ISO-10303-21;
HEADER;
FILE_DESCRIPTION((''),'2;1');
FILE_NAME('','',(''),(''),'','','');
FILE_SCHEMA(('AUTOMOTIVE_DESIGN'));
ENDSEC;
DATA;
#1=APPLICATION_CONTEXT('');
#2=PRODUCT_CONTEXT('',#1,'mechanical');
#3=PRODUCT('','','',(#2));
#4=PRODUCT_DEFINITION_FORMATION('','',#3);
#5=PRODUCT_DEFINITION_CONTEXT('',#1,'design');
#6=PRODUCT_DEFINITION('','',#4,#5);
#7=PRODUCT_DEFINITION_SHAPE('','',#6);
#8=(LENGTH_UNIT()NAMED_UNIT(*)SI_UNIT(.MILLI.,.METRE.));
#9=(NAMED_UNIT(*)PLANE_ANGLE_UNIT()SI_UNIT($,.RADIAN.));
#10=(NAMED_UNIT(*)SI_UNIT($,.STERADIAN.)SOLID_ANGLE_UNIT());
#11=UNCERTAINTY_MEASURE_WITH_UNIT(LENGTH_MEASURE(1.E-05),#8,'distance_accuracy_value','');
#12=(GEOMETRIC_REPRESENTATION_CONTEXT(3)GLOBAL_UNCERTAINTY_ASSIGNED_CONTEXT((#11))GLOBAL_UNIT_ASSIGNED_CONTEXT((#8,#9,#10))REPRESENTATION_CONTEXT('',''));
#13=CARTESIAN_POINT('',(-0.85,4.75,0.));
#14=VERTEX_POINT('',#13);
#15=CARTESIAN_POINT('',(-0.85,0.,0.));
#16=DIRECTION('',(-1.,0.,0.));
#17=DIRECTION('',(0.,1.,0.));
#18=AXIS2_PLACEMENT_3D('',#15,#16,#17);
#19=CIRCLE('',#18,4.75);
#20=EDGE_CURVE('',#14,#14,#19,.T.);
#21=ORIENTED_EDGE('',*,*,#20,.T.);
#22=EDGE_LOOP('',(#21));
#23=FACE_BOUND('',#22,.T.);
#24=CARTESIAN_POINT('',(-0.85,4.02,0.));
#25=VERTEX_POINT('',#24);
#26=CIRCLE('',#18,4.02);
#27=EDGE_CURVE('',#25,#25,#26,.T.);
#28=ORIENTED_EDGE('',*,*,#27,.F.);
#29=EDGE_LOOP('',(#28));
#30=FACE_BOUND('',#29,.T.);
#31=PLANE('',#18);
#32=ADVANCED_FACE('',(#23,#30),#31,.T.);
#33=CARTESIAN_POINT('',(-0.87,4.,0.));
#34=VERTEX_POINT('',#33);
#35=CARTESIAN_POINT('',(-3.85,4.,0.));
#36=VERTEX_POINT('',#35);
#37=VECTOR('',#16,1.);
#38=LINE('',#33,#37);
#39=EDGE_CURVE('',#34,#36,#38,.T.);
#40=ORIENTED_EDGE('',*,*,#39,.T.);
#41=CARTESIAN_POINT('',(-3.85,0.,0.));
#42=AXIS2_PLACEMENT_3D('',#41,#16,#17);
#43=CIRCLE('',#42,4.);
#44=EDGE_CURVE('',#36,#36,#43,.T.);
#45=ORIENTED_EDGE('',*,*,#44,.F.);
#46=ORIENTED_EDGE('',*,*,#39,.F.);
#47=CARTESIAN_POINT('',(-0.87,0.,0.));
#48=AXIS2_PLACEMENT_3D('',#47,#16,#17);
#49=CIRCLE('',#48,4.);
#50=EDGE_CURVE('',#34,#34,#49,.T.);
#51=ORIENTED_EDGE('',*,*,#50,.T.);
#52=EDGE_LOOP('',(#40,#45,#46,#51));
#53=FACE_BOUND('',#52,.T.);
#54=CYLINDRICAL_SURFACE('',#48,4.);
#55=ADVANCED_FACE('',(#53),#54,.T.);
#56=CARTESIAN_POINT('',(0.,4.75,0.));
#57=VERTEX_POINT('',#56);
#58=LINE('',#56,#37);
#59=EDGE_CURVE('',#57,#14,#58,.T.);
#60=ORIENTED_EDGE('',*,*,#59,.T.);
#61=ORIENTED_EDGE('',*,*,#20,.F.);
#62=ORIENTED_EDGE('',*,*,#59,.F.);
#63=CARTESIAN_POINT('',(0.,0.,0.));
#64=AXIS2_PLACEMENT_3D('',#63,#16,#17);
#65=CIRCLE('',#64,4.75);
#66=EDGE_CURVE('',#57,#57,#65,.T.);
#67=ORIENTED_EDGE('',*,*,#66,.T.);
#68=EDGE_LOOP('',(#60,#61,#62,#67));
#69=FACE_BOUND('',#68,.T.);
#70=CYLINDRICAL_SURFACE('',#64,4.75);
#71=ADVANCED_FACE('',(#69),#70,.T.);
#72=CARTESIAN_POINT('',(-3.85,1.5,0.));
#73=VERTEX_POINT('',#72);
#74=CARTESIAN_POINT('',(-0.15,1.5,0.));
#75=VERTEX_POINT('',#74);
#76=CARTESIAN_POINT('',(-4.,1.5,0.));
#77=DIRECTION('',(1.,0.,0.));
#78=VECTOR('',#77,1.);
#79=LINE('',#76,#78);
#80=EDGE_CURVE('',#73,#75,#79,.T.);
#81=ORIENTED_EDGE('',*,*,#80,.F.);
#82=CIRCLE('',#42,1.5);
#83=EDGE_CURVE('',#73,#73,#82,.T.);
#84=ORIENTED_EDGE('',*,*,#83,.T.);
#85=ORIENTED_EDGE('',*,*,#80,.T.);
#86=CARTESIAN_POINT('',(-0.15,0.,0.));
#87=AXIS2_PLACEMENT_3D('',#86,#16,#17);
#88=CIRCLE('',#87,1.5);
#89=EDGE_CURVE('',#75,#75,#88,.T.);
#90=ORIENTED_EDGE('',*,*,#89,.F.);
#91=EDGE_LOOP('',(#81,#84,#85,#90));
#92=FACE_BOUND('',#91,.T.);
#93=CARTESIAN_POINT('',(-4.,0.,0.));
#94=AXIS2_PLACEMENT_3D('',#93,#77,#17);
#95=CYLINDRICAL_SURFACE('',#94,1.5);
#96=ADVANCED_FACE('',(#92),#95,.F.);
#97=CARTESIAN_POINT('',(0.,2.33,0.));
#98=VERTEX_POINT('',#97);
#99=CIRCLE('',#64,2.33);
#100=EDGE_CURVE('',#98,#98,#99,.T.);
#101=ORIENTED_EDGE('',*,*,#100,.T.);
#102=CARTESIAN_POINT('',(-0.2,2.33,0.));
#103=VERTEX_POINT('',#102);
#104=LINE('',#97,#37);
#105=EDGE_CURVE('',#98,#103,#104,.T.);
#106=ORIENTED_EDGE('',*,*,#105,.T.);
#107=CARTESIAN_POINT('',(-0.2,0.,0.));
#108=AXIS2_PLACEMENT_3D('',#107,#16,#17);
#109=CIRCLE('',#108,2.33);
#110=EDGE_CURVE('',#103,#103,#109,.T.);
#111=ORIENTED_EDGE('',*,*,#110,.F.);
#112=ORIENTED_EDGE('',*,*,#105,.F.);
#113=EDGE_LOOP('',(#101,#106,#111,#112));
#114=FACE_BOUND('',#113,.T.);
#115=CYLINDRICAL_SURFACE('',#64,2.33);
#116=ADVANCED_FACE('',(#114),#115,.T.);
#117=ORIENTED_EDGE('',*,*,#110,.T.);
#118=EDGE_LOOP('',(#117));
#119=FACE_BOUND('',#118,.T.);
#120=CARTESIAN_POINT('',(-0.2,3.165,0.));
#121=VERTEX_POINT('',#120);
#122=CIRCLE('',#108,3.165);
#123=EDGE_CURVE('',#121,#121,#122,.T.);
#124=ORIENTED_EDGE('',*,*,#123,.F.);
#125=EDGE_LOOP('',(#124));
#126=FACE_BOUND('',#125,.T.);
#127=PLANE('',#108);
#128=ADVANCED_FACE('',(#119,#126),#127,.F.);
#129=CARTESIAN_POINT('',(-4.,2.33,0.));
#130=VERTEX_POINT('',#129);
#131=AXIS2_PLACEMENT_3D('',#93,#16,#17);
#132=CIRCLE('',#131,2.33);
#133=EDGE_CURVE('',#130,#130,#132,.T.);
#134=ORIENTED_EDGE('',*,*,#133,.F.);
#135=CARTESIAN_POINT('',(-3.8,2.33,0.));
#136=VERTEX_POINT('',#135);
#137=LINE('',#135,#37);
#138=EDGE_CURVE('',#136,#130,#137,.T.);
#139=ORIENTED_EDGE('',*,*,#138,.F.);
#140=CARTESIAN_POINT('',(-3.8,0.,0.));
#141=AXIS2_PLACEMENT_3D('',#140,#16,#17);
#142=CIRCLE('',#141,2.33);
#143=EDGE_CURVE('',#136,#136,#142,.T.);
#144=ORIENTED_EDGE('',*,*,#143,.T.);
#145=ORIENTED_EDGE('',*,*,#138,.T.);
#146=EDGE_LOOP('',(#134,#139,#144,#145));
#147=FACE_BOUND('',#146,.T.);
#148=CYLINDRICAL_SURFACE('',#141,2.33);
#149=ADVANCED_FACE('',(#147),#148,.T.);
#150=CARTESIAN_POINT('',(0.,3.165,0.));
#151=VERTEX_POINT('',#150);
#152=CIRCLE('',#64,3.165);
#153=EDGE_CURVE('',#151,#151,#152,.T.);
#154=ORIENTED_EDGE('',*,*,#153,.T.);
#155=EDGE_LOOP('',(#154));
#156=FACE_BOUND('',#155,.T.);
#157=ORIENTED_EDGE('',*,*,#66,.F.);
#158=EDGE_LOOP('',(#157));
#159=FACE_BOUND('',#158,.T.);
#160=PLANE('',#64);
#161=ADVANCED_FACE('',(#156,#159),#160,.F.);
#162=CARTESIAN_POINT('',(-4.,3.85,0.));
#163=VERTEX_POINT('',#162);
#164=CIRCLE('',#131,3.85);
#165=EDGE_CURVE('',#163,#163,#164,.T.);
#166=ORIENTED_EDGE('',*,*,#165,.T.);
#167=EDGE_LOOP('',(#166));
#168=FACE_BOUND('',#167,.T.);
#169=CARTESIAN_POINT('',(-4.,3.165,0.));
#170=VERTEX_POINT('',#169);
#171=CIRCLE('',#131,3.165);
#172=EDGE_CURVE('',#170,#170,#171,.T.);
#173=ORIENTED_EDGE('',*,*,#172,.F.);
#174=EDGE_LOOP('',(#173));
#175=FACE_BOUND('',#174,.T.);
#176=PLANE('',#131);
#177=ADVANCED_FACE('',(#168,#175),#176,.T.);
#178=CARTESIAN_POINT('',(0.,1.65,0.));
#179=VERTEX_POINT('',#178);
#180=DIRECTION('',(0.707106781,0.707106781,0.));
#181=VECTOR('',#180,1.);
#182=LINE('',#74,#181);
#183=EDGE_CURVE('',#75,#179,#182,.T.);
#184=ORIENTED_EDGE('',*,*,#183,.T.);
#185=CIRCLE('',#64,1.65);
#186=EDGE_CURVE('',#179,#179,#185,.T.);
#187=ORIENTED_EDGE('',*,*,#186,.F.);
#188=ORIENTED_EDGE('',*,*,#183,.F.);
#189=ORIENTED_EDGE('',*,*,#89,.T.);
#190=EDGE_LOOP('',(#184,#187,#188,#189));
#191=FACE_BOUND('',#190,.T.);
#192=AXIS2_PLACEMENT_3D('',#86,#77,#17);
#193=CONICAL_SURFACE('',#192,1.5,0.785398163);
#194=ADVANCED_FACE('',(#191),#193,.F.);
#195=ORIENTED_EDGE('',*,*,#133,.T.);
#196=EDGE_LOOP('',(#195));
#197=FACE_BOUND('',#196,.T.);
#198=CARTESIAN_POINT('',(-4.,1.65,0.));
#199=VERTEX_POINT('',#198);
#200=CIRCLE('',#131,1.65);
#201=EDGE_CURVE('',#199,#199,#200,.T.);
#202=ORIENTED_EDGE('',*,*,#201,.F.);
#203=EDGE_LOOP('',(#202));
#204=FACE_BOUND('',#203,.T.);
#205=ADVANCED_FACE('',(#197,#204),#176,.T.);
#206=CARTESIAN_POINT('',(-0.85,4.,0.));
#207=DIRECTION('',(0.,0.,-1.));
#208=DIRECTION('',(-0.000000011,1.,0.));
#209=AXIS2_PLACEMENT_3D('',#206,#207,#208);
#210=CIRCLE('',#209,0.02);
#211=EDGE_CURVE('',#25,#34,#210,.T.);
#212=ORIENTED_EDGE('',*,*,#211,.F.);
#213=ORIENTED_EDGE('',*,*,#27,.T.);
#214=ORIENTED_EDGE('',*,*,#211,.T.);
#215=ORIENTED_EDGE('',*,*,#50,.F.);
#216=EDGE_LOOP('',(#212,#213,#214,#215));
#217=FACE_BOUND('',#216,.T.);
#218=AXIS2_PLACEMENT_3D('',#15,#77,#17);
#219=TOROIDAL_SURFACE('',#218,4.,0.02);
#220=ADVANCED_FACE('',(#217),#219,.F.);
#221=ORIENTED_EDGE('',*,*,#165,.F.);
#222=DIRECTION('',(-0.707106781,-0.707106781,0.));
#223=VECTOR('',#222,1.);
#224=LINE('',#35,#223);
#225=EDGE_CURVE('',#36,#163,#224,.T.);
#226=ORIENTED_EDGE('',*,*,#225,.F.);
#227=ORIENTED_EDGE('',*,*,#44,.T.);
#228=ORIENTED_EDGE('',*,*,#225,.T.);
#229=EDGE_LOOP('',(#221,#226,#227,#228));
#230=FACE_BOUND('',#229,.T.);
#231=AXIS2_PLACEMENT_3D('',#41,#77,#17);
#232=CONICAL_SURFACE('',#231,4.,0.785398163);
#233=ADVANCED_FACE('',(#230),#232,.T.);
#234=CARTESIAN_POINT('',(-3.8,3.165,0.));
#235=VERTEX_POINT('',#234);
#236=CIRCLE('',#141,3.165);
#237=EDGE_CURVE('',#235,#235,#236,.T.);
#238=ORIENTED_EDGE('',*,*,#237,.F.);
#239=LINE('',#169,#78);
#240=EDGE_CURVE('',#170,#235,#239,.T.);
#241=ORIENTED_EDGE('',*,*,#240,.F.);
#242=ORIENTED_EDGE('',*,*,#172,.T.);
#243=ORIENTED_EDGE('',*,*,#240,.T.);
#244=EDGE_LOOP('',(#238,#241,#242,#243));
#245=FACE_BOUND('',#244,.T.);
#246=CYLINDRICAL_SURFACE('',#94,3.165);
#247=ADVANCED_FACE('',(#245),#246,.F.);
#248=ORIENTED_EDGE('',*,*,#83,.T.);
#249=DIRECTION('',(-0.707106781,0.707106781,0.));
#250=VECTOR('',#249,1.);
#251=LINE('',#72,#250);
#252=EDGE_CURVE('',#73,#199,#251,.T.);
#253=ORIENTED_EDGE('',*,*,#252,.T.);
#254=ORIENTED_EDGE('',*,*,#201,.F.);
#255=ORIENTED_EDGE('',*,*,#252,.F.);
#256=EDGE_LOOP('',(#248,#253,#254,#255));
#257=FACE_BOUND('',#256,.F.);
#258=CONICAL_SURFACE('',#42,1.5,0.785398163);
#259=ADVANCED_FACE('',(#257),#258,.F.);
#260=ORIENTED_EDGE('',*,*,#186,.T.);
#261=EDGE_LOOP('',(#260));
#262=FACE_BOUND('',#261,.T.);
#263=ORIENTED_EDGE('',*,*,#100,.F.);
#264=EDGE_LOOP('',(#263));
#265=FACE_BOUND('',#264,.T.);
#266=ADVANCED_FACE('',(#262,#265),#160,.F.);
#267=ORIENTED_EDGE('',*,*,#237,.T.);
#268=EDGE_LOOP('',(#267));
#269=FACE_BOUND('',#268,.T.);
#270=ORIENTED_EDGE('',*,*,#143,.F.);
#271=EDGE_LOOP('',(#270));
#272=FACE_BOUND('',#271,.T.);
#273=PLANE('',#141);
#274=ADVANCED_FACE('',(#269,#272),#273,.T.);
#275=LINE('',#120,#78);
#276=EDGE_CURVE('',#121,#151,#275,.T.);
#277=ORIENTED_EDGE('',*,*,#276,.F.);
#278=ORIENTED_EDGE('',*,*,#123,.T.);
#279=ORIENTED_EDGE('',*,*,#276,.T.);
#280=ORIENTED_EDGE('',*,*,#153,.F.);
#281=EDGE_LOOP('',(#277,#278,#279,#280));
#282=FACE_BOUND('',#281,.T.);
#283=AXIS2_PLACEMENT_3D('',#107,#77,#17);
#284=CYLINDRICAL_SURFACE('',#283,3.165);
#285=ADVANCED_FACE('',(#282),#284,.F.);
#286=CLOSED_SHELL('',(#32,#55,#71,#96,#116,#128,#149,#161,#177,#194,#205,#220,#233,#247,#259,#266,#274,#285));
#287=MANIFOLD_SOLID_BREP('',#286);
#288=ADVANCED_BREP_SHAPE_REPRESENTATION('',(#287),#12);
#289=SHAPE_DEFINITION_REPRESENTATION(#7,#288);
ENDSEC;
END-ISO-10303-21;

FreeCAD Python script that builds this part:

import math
import FreeCAD as App
import Part
import Sketcher

V = App.Vector


def edges_at(feature, points):
    """Names of the edges that pass closest to the given points."""
    edges = feature.Shape.Edges
    near = lambda p: min(range(len(edges)), key=lambda i: edges[i].distToShape(Part.Vertex(*p))[0])
    return sorted({f"Edge{near(p) + 1}" for p in points})

doc = App.newDocument("Part")
params = doc.addObject("Spreadsheet::Sheet", "Params")
for row, (alias, value) in enumerate([
    ("sketch1_width", "4 mm"),
    ("sketch1_radius", "0.02 mm"),
    ("sketch1_width2", "0.2 mm"),
    ("sketch1_width3", "0.85 mm"),
    ("sketch1_height", "0.83 mm"),
    ("revolution_angle", "360 deg"),
    ("chamfer_size", "0.15 mm"),
], start=1):
    params.set(f"A{row}", alias)
    params.set(f"B{row}", "=" + value)
    params.setAlias(f"B{row}", alias)

body = doc.addObject("PartDesign::Body", "Body")

# Sketch on XY plane
sketch1 = body.newObject("Sketcher::SketchObject", "Sketch")
sketch1.AttachmentSupport = (doc.getObject("XY_Plane"), [""])
sketch1.MapMode = "FlatFace"
sketch1.addGeometry([
    Part.LineSegment(V(-4, 1.5, 0), V(0, 1.5, 0)),  # 0
    Part.LineSegment(V(0, 1.5, 0), V(0, 2.33, 0)),  # 1
    Part.LineSegment(V(0, 2.33, 0), V(-0.2, 2.33, 0)),  # 2
    Part.LineSegment(V(-0.2, 2.33, 0), V(-0.2, 3.165, 0)),  # 3
    Part.LineSegment(V(-0.2, 3.165, 0), V(0, 3.165, 0)),  # 4
    Part.LineSegment(V(0, 3.165, 0), V(0, 4.75, 0)),  # 5
    Part.LineSegment(V(0, 4.75, 0), V(-0.85, 4.75, 0)),  # 6
    Part.LineSegment(V(-0.85, 4.75, 0), V(-0.85, 4.02, 0)),  # 7
    Part.ArcOfCircle(Part.Circle(V(-0.85, 4, 0), V(0, 0, 1), 0.02), math.radians(180), math.radians(450)),  # 8
    Part.LineSegment(V(-0.87, 4, 0), V(-4, 4, 0)),  # 9
    Part.LineSegment(V(-4, 4, 0), V(-4, 3.165, 0)),  # 10
    Part.LineSegment(V(-4, 3.165, 0), V(-3.8, 3.165, 0)),  # 11
    Part.LineSegment(V(-3.8, 3.165, 0), V(-3.8, 2.33, 0)),  # 12
    Part.LineSegment(V(-3.8, 2.33, 0), V(-4, 2.33, 0)),  # 13
    Part.LineSegment(V(-4, 2.33, 0), V(-4, 1.5, 0)),  # 14
], False)
sketch1.addConstraint([
    Sketcher.Constraint("Coincident", 0, 2, 1, 1),
    Sketcher.Constraint("Coincident", 1, 2, 2, 1),
    Sketcher.Constraint("Coincident", 2, 2, 3, 1),
    Sketcher.Constraint("Coincident", 3, 2, 4, 1),
    Sketcher.Constraint("Coincident", 4, 2, 5, 1),
    Sketcher.Constraint("Coincident", 5, 2, 6, 1),
    Sketcher.Constraint("Coincident", 6, 2, 7, 1),
    Sketcher.Constraint("Coincident", 7, 2, 8, 2),
    Sketcher.Constraint("Coincident", 8, 1, 9, 1),
    Sketcher.Constraint("Coincident", 9, 2, 10, 1),
    Sketcher.Constraint("Coincident", 10, 2, 11, 1),
    Sketcher.Constraint("Coincident", 11, 2, 12, 1),
    Sketcher.Constraint("Coincident", 12, 2, 13, 1),
    Sketcher.Constraint("Coincident", 13, 2, 14, 1),
    Sketcher.Constraint("Coincident", 14, 2, 0, 1),
    Sketcher.Constraint("Horizontal", 0),
    Sketcher.Constraint("Vertical", 1),
    Sketcher.Constraint("Horizontal", 2),
    Sketcher.Constraint("Vertical", 3),
    Sketcher.Constraint("Horizontal", 4),
    Sketcher.Constraint("Vertical", 5),
    Sketcher.Constraint("Horizontal", 6),
    Sketcher.Constraint("Vertical", 7),
    Sketcher.Constraint("Horizontal", 9),
    Sketcher.Constraint("Vertical", 10),
    Sketcher.Constraint("Horizontal", 11),
    Sketcher.Constraint("Vertical", 12),
    Sketcher.Constraint("Horizontal", 13),
    Sketcher.Constraint("Vertical", 14),
    Sketcher.Constraint("PointOnObject", 0, 2, -2),
    Sketcher.Constraint("PointOnObject", 4, 2, -2),
    Sketcher.Constraint("Horizontal", 4, 2, 10, 2),
    Sketcher.Constraint("Horizontal", 2, 2, 12, 2),
    Sketcher.Constraint("Vertical", 8, 3, 6, 2),
    Sketcher.Constraint("Vertical", 10, 2, 13, 2),
    Sketcher.Constraint("Equal", 4, 11),
    Sketcher.Constraint("Equal", 3, 10),
    Sketcher.Constraint("DistanceX", 0, 1, 0, 2, 4.0),
    Sketcher.Constraint("Radius", 8, 0.02),
    Sketcher.Constraint("DistanceX", 2, 2, 2, 1, 0.2),
    Sketcher.Constraint("DistanceY", -1, 1, 8, 3, 4.0),
    Sketcher.Constraint("DistanceY", -1, 1, 8, 1, 4.0),
    Sketcher.Constraint("DistanceX", 6, 2, 6, 1, 0.85),
    Sketcher.Constraint("DistanceY", 1, 1, 1, 2, 0.83),
    Sketcher.Constraint("DistanceY", 7, 2, 7, 1, 0.73),
    Sketcher.Constraint("DistanceY", -1, 1, 0, 2, 1.5),
])
sketch1.setExpression("Constraints[37]", "Params.sketch1_width")
sketch1.setExpression("Constraints[38]", "Params.sketch1_radius")
sketch1.setExpression("Constraints[39]", "Params.sketch1_width2")
sketch1.setExpression("Constraints[42]", "Params.sketch1_width3")
sketch1.setExpression("Constraints[43]", "Params.sketch1_height")
revolution = body.newObject("PartDesign::Revolution", "Revolution")
revolution.Profile = sketch1
revolution.ReferenceAxis = (sketch1, ["H_Axis"])
revolution.setExpression("Angle", "Params.revolution_angle")
doc.recompute()

chamfer = body.newObject("PartDesign::Chamfer", "Chamfer")
chamfer.Base = (revolution, edges_at(revolution, [(-4, -4, 0), (0, -1.5, 0), (-4, -1.5, 0)]))
chamfer.setExpression("Size", "Params.chamfer_size")

doc.recompute()
